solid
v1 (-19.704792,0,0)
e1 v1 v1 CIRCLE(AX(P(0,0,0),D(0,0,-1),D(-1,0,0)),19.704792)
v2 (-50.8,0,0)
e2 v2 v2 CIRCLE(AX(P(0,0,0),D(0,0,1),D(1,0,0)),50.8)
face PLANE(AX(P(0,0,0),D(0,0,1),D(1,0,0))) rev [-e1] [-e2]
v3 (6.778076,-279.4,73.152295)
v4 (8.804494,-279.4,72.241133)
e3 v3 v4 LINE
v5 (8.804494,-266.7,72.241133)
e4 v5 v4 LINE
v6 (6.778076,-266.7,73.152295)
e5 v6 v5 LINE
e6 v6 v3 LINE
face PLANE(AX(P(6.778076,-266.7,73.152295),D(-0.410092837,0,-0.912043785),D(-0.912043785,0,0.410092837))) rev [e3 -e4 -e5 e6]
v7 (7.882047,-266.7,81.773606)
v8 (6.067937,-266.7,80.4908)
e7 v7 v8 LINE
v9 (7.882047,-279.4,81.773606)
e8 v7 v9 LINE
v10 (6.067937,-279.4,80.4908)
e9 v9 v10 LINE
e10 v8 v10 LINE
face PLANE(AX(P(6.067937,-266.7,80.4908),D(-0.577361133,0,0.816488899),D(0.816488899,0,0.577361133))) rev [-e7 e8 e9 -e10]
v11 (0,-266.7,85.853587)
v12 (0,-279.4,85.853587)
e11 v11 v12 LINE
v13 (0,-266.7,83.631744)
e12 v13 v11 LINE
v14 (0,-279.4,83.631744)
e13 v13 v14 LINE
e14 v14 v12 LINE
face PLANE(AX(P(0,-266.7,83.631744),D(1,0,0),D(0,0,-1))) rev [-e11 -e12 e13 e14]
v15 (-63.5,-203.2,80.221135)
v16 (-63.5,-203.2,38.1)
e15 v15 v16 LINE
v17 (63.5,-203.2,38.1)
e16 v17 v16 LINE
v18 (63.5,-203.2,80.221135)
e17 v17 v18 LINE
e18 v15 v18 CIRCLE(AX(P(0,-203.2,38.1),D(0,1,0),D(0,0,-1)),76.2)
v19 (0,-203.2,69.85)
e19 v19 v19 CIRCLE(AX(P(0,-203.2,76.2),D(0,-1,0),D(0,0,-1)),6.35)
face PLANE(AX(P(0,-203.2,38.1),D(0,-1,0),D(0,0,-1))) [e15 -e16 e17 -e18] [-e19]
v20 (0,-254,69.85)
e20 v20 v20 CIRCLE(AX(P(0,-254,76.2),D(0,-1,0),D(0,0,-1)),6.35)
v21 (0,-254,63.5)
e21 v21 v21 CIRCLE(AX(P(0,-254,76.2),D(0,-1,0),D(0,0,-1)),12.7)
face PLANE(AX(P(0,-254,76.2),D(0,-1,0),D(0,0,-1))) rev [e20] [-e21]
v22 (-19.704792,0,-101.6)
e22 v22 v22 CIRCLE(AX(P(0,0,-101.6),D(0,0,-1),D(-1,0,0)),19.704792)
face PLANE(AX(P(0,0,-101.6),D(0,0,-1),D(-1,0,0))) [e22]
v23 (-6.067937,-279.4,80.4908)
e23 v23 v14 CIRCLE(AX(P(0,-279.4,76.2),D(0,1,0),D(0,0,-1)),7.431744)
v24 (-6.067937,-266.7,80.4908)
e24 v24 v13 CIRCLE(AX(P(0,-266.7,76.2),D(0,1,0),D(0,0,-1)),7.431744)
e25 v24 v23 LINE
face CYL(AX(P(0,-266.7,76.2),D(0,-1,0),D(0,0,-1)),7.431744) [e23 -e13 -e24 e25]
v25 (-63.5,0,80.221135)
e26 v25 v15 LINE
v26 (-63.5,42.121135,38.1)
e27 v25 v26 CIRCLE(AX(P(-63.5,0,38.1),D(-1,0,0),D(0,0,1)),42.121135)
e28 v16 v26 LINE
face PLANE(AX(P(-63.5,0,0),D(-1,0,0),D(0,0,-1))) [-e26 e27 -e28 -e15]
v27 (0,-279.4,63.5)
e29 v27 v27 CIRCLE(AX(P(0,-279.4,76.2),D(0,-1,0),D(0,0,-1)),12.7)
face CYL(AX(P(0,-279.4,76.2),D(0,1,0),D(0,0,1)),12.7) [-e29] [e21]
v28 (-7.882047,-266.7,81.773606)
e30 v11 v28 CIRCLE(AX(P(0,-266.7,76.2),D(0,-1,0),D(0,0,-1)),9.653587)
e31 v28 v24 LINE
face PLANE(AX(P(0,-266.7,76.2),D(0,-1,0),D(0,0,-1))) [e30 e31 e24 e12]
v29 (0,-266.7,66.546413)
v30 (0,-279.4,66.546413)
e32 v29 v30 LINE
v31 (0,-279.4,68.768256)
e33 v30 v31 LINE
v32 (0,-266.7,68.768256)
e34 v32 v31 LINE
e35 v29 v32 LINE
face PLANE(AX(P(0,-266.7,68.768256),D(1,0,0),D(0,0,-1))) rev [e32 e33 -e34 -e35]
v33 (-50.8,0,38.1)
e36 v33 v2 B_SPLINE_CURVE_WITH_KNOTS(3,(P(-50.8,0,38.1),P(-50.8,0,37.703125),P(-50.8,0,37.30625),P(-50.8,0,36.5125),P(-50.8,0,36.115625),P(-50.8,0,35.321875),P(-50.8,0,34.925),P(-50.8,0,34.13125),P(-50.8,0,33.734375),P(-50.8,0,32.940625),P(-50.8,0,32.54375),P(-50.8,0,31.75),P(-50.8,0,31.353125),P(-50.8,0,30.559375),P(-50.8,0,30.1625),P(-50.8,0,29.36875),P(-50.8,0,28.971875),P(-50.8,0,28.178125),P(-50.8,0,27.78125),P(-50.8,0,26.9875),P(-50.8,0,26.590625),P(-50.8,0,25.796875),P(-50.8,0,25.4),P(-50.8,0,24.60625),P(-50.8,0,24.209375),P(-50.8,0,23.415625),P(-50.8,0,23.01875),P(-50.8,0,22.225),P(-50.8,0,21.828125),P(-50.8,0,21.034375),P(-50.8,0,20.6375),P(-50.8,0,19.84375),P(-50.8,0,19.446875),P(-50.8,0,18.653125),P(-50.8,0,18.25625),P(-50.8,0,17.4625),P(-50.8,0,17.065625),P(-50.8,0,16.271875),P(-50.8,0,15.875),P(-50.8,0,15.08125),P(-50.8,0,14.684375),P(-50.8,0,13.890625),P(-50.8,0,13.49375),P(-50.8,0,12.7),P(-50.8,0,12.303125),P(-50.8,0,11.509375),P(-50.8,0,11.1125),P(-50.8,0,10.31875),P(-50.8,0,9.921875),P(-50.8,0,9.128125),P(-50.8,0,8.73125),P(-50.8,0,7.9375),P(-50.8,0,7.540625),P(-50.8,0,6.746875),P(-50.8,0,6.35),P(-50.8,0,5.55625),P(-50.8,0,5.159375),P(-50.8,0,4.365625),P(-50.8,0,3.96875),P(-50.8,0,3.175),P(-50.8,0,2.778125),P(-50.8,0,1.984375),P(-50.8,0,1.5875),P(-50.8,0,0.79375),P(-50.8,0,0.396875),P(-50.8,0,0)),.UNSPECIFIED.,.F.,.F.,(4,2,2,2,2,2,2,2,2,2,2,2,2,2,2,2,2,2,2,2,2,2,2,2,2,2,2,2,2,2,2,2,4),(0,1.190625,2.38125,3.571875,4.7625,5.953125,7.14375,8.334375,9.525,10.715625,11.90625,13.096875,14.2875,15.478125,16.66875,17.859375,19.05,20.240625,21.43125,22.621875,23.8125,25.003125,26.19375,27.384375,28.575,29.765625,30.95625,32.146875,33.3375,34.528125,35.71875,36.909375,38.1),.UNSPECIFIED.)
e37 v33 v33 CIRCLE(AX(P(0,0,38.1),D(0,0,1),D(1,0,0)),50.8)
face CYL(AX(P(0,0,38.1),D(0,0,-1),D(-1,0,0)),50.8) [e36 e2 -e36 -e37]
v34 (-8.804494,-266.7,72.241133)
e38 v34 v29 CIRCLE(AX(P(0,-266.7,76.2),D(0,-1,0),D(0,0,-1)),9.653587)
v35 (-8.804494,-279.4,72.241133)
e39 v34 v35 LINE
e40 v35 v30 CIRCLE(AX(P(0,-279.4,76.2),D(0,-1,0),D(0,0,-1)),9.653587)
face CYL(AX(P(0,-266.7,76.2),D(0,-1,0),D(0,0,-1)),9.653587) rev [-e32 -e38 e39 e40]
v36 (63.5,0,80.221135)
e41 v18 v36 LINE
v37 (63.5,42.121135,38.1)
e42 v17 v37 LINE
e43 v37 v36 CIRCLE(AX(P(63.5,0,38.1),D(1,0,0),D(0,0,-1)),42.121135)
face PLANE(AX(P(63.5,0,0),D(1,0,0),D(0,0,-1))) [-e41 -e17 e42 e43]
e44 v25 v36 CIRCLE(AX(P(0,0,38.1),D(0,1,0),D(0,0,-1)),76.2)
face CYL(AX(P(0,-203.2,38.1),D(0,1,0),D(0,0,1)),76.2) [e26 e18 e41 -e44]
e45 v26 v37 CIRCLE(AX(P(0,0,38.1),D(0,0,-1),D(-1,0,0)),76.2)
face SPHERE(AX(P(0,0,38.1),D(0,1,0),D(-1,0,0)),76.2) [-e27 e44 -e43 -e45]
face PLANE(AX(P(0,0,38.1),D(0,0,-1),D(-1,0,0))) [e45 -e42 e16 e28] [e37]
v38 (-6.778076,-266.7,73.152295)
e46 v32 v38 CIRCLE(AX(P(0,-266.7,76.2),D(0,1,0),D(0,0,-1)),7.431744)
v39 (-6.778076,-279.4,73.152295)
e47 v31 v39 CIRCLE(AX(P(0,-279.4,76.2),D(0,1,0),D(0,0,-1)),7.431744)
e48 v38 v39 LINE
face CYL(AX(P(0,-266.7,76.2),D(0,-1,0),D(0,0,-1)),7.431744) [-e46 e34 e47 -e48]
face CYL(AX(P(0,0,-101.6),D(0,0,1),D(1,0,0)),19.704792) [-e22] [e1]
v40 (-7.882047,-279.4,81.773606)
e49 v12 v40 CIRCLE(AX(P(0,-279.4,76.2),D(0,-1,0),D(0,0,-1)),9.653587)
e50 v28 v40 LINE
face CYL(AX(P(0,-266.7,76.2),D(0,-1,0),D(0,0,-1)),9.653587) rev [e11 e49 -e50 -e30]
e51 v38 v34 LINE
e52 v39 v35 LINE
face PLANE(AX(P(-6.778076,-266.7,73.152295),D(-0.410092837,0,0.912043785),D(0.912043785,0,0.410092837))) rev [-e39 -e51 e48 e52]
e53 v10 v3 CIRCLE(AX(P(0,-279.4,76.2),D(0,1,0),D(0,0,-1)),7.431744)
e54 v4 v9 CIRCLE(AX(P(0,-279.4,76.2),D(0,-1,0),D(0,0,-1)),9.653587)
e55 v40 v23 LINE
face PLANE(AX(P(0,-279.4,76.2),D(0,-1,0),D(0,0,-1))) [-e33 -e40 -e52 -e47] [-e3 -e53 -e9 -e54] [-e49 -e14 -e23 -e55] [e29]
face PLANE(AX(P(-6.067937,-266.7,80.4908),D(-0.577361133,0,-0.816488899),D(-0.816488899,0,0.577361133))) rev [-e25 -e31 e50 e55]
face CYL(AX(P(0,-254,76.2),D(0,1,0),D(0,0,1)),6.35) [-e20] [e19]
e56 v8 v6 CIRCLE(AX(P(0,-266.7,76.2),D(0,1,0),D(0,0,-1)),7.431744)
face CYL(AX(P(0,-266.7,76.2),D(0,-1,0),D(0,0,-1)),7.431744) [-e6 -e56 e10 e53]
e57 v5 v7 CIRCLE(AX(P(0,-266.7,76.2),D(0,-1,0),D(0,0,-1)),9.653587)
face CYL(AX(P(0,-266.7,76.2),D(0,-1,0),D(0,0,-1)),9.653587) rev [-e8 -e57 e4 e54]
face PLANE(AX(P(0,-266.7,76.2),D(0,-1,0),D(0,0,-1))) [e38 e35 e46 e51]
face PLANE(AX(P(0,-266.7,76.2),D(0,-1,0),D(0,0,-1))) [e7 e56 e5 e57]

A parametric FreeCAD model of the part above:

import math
import FreeCAD as App
import Part
import Sketcher
Q = App.Units.Quantity

doc = App.newDocument("Part")
body = doc.addObject("PartDesign::Body", "Body")

sketch1 = body.newObject("Sketcher::SketchObject", "Sketch")
sketch1.AttachmentSupport = (doc.getObject("XY_Plane"), [""])
sketch1.MapMode = "FlatFace"
sketch1.addGeometry(Part.Circle(App.Vector(0, 0, 0), App.Vector(0, 0, 1), 51), False)
sketch1.addConstraint([
    Sketcher.Constraint("Coincident", 0, 3, -1, 1),
    Sketcher.Constraint("Diameter", 0, Q("4 in")),
])
pad1 = body.newObject("PartDesign::Pad", "Pad")
pad1.Profile = sketch1
pad1.Length = Q("1.5 in")

sketch2 = body.newObject("Sketcher::SketchObject", "Sketch001")
sketch2.AttachmentSupport = (doc.getObject("XY_Plane"), [""])
sketch2.MapMode = "FlatFace"
sketch2.AttachmentOffset = App.Placement(App.Vector(0, 0, 1.5 * 25.4), App.Rotation())
sketch2.addGeometry([
    Part.LineSegment(App.Vector(0, 76, 0), App.Vector(0, -76, 0)),
    Part.ArcOfCircle(Part.Circle(App.Vector(0, 0, 0), App.Vector(0, 0, 1), 76), math.radians(-90), math.radians(90)),
], False)
sketch2.addConstraint([
    Sketcher.Constraint("Coincident", 0, 1, 1, 2),
    Sketcher.Constraint("Coincident", 1, 1, 0, 2),
    Sketcher.Constraint("Vertical", 0),
    Sketcher.Constraint("Coincident", 1, 3, -1, 1),
    Sketcher.Constraint("PointOnObject", 0, 1, -2),
    Sketcher.Constraint("Radius", 1, Q("3 in")),
])
revolution = body.newObject("PartDesign::Revolution", "Revolution")
revolution.Profile = sketch2
revolution.ReferenceAxis = (sketch2, ["V_Axis"])
revolution.Angle = 180
revolution.Reversed = True

sketch3 = body.newObject("Sketcher::SketchObject", "Sketch002")
sketch3.AttachmentSupport = (doc.getObject("XZ_Plane"), [""])
sketch3.MapMode = "FlatFace"
sketch3.addGeometry([
    Part.LineSegment(App.Vector(76, 38, 0), App.Vector(-76, 38, 0)),
    Part.ArcOfCircle(Part.Circle(App.Vector(0, 38, 0), App.Vector(0, 0, 1), 76), math.radians(0), math.radians(180)),
], False)
sketch3.addConstraint([
    Sketcher.Constraint("Coincident", 0, 1, 1, 1),
    Sketcher.Constraint("Coincident", 1, 2, 0, 2),
    Sketcher.Constraint("Horizontal", 0),
    Sketcher.Constraint("PointOnObject", 1, 3, -2),
    Sketcher.Constraint("Horizontal", 1, 3, 0, 1),
    Sketcher.Constraint("Radius", 1, Q("3 in")),
    Sketcher.Constraint("DistanceY", -1, 1, 1, 3, Q("1.5 in")),
])
pad2 = body.newObject("PartDesign::Pad", "Pad001")
pad2.Profile = sketch3
pad2.Length = Q("8 in")

sketch4 = body.newObject("Sketcher::SketchObject", "Sketch003")
sketch4.AttachmentSupport = (doc.getObject("YZ_Plane"), [""])
sketch4.MapMode = "FlatFace"
sketch4.AttachmentOffset = App.Placement(App.Vector(0, 0, 3 * 25.4), App.Rotation())
sketch4.addGeometry([
    Part.LineSegment(App.Vector(76, 114, 0), App.Vector(-203, 114, 0)),
    Part.LineSegment(App.Vector(-203, 114, 0), App.Vector(-203, 38, 0)),
    Part.LineSegment(App.Vector(-203, 38, 0), App.Vector(76, 38, 0)),
    Part.LineSegment(App.Vector(76, 38, 0), App.Vector(76, 114, 0)),
], False)
sketch4.addConstraint([
    Sketcher.Constraint("Coincident", 0, 2, 1, 1),
    Sketcher.Constraint("Coincident", 1, 2, 2, 1),
    Sketcher.Constraint("Coincident", 2, 2, 3, 1),
    Sketcher.Constraint("Coincident", 3, 2, 0, 1),
    Sketcher.Constraint("Horizontal", 0),
    Sketcher.Constraint("Vertical", 1),
    Sketcher.Constraint("Horizontal", 2),
    Sketcher.Constraint("Vertical", 3),
    Sketcher.Constraint("DistanceX", 0, 2, 0, 1, Q("11 in")),
    Sketcher.Constraint("DistanceY", 1, 2, 1, 1, Q("3 in")),
    Sketcher.Constraint("DistanceX", 0, 2, -1, 1, Q("8 in")),
    Sketcher.Constraint("DistanceY", -1, 1, 0, 2, Q("4.5 in")),
])
pocket1 = body.newObject("PartDesign::Pocket", "Pocket")
pocket1.Profile = sketch4
pocket1.Length = Q("0.5 in")
doc.recompute()

mirrored = body.newObject("PartDesign::Mirrored", "Mirrored")
mirrored.Originals = [pocket1]
mirrored.MirrorPlane = (doc.getObject("YZ_Plane"), [""])
body.Tip = mirrored

sketch5 = body.newObject("Sketcher::SketchObject", "Sketch004")
sketch5.AttachmentSupport = (doc.getObject("XY_Plane"), [""])
sketch5.MapMode = "FlatFace"
sketch5.addGeometry(Part.Circle(App.Vector(0, 0, 0), App.Vector(0, 0, 1), 20), False)
sketch5.addConstraint([
    Sketcher.Constraint("Coincident", 0, 3, -1, 1),
    Sketcher.Constraint("Diameter", 0, 39.409584),
])
pad3 = body.newObject("PartDesign::Pad", "Pad002")
pad3.Profile = sketch5
pad3.Length = Q("4 in")
pad3.Reversed = True

sketch6 = body.newObject("Sketcher::SketchObject", "Sketch005")
sketch6.AttachmentSupport = (doc.getObject("XZ_Plane"), [""])
sketch6.MapMode = "FlatFace"
sketch6.AttachmentOffset = App.Placement(App.Vector(0, 0, 8 * 25.4), App.Rotation())
sketch6.addGeometry(Part.Circle(App.Vector(0, 76, 0), App.Vector(0, 0, 1), 6), False)
sketch6.addConstraint([
    Sketcher.Constraint("PointOnObject", 0, 3, -2),
    Sketcher.Constraint("Diameter", 0, Q("0.5 in")),
    Sketcher.Constraint("DistanceY", -1, 1, 0, 3, Q("3 in")),
])
pad4 = body.newObject("PartDesign::Pad", "Pad003")
pad4.Profile = sketch6
pad4.Length = Q("2 in")

sketch7 = body.newObject("Sketcher::SketchObject", "Sketch006")
sketch7.AttachmentSupport = (doc.getObject("XZ_Plane"), [""])
sketch7.MapMode = "FlatFace"
sketch7.AttachmentOffset = App.Placement(App.Vector(0, 0, 10 * 25.4), App.Rotation())
sketch7.addGeometry(Part.Circle(App.Vector(0, 76, 0), App.Vector(0, 0, 1), 13), False)
sketch7.addConstraint([
    Sketcher.Constraint("PointOnObject", 0, 3, -2),
    Sketcher.Constraint("Diameter", 0, Q("1 in")),
    Sketcher.Constraint("DistanceY", -1, 1, 0, 3, Q("3 in")),
])
pad5 = body.newObject("PartDesign::Pad", "Pad004")
pad5.Profile = sketch7
pad5.Length = Q("1 in")

sketch8 = body.newObject("Sketcher::SketchObject", "Sketch007")
sketch8.AttachmentSupport = (doc.getObject("XZ_Plane"), [""])
sketch8.MapMode = "FlatFace"
sketch8.AttachmentOffset = App.Placement(App.Vector(0, 0, 11 * 25.4), App.Rotation())
sketch8.addGeometry([
    Part.LineSegment(App.Vector(0, 83.6, 0), App.Vector(0, 85.9, 0)),
    Part.ArcOfCircle(Part.Circle(App.Vector(0, 76.2, 0), App.Vector(0, 0, 1), 9.7), math.radians(90), math.radians(145)),
    Part.LineSegment(App.Vector(-7.9, 81.8, 0), App.Vector(-6.1, 80.5, 0)),
    Part.ArcOfCircle(Part.Circle(App.Vector(0, 76.2, 0), App.Vector(0, 0, 1), 7.4), math.radians(90), math.radians(145)),
    Part.LineSegment(App.Vector(7.9, 81.8, 0), App.Vector(6.1, 80.5, 0)),
    Part.ArcOfCircle(Part.Circle(App.Vector(0, 76.2, 0), App.Vector(0, 0, 1), 7.4), math.radians(-24), math.radians(35)),
    Part.LineSegment(App.Vector(6.8, 73.2, 0), App.Vector(8.8, 72.2, 0)),
    Part.ArcOfCircle(Part.Circle(App.Vector(0, 76.2, 0), App.Vector(0, 0, 1), 9.7), math.radians(-24), math.radians(35)),
    Part.LineSegment(App.Vector(-6.8, 73.2, 0), App.Vector(-8.8, 72.2, 0)),
    Part.ArcOfCircle(Part.Circle(App.Vector(0, 76.2, 0), App.Vector(0, 0, 1), 9.7), math.radians(-156), math.radians(-90)),
    Part.LineSegment(App.Vector(0, 66.5, 0), App.Vector(0, 68.8, 0)),
    Part.ArcOfCircle(Part.Circle(App.Vector(0, 76.2, 0), App.Vector(0, 0, 1), 7.4), math.radians(-156), math.radians(-90)),
], False)
sketch8.addConstraint([
    Sketcher.Constraint("Coincident", 0, 2, 1, 1),
    Sketcher.Constraint("Coincident", 1, 2, 2, 1),
    Sketcher.Constraint("Coincident", 2, 2, 3, 2),
    Sketcher.Constraint("Coincident", 3, 1, 0, 1),
    Sketcher.Constraint("Coincident", 4, 2, 5, 2),
    Sketcher.Constraint("Coincident", 5, 1, 6, 1),
    Sketcher.Constraint("Coincident", 6, 2, 7, 1),
    Sketcher.Constraint("Coincident", 7, 2, 4, 1),
    Sketcher.Constraint("Coincident", 8, 2, 9, 1),
    Sketcher.Constraint("Coincident", 9, 2, 10, 1),
    Sketcher.Constraint("Coincident", 10, 2, 11, 2),
    Sketcher.Constraint("Coincident", 11, 1, 8, 1),
    Sketcher.Constraint("Vertical", 0),
    Sketcher.Constraint("Vertical", 10),
    Sketcher.Constraint("Coincident", 3, 3, 1, 3),
    Sketcher.Constraint("Coincident", 5, 3, 1, 3),
    Sketcher.Constraint("Coincident", 7, 3, 1, 3),
    Sketcher.Constraint("Coincident", 9, 3, 1, 3),
    Sketcher.Constraint("Coincident", 11, 3, 1, 3),
    Sketcher.Constraint("Equal", 3, 5),
    Sketcher.Constraint("Equal", 1, 7),
    Sketcher.Constraint("Equal", 7, 9),
    Sketcher.Constraint("Equal", 5, 11),
    Sketcher.Constraint("Symmetric", 2, 2, 4, 2, -2),
    Sketcher.Constraint("PointOnObject", 0, 2, -2),
    Sketcher.Constraint("PointOnObject", 9, 2, -2),
    Sketcher.Constraint("Horizontal", 1, 2, 7, 2),
    Sketcher.Constraint("Horizontal", 6, 2, 8, 2),
    Sketcher.Constraint("Horizontal", 5, 1, 11, 1),
    Sketcher.Constraint("DistanceY", -1, 1, 1, 3, Q("3 in")),
    Sketcher.Constraint("Radius", 1, 9.653587),
    Sketcher.Constraint("Radius", 3, 7.431744),
    Sketcher.Constraint("DistanceY", -1, 1, 2, 2, 80.4908),
    Sketcher.Constraint("DistanceY", 1, 2, 0, 2, 4.079981),
    Sketcher.Constraint("DistanceX", 4, 2, 5, 1, 0.710139),
    Sketcher.Constraint("DistanceX", 5, 1, 6, 2, 2.026418),
])
pocket2 = body.newObject("PartDesign::Pocket", "Pocket001")
pocket2.Profile = sketch8
pocket2.Length = Q("0.5 in")

doc.recompute()
